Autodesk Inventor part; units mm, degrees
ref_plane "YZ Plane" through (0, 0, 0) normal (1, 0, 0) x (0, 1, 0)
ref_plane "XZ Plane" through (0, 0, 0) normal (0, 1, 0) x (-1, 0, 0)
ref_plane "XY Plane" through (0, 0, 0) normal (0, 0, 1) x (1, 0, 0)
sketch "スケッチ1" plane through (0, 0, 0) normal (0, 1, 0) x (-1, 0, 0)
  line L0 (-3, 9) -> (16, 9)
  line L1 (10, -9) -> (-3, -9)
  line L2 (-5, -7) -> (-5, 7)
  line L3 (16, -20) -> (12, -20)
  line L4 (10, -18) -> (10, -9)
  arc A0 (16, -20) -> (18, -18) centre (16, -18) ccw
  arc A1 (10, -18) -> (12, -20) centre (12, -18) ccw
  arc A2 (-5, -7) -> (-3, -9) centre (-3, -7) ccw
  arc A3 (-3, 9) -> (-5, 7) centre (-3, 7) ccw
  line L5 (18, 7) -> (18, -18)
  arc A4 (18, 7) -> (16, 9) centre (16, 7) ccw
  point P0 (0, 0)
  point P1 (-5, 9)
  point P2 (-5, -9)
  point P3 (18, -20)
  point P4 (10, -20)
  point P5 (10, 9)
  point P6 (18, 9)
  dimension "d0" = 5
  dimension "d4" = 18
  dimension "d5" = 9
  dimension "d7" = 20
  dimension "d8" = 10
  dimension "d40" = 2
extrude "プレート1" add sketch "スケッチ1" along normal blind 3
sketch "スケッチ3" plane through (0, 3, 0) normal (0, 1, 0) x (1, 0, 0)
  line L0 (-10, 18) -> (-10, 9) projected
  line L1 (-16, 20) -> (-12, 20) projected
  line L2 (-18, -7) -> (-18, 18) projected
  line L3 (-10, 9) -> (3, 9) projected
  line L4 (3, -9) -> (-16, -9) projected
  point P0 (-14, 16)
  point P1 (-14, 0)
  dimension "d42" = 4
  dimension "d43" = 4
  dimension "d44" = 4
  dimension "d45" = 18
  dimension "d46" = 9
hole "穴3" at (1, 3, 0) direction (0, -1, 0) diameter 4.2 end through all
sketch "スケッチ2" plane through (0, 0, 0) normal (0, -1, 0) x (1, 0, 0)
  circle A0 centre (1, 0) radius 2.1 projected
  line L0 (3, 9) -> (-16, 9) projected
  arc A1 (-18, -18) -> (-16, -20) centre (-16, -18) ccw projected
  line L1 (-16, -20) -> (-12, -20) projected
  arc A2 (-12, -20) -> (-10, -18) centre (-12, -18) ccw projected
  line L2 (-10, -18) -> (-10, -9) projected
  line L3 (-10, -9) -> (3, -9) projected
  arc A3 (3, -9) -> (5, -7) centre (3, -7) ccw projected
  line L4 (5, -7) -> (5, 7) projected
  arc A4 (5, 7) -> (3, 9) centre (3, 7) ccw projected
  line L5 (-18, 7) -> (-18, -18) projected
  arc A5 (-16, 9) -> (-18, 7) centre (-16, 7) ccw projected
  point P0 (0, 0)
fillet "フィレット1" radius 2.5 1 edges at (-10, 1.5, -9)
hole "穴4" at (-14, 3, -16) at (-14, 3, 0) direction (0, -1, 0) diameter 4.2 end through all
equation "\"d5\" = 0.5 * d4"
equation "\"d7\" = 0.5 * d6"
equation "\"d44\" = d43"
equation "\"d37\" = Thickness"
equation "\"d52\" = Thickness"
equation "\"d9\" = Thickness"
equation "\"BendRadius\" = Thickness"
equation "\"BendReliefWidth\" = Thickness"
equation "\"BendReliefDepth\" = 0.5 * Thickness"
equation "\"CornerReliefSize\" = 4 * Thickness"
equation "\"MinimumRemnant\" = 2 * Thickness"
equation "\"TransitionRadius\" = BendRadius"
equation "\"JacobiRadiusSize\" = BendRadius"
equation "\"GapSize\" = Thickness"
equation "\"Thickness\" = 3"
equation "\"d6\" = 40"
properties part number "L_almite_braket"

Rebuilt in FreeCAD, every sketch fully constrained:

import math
import FreeCAD as App
import Part
import Sketcher
Q = App.Units.Quantity


def edges_at(feature, points):
    """Names of the edges that pass closest to the given points."""
    edges = feature.Shape.Edges
    near = lambda p: min(range(len(edges)), key=lambda i: edges[i].distToShape(Part.Vertex(*p))[0])
    return sorted({f"Edge{near(p) + 1}" for p in points})

doc = App.newDocument("Part")
body = doc.addObject("PartDesign::Body", "Body")

sketch1 = body.newObject("Sketcher::SketchObject", "Sketch")
sketch1.AttachmentSupport = (doc.getObject("XZ_Plane"), [""])
sketch1.MapMode = "FlatFace"
sketch1.addGeometry(Part.LineSegment(App.Vector(-16, 9, 0), App.Vector(3, 9, 0)), False)
sketch1.addGeometry(Part.ArcOfCircle(Part.Circle(App.Vector(3, 7, 0), App.Vector(0, 0, 1), 2), math.radians(0), math.radians(90)), False)
sketch1.addGeometry(Part.LineSegment(App.Vector(5, 7, 0), App.Vector(5, -7, 0)), False)
sketch1.addGeometry(Part.ArcOfCircle(Part.Circle(App.Vector(3, -7, 0), App.Vector(0, 0, 1), 2), math.radians(-90), math.radians(0)), False)
sketch1.addGeometry(Part.LineSegment(App.Vector(3, -9, 0), App.Vector(-10, -9, 0)), False)
sketch1.addGeometry(Part.LineSegment(App.Vector(-10, -9, 0), App.Vector(-10, -18, 0)), False)
sketch1.addGeometry(Part.ArcOfCircle(Part.Circle(App.Vector(-12, -18, 0), App.Vector(0, 0, 1), 2), math.radians(-90), math.radians(0)), False)
sketch1.addGeometry(Part.LineSegment(App.Vector(-12, -20, 0), App.Vector(-16, -20, 0)), False)
sketch1.addGeometry(Part.ArcOfCircle(Part.Circle(App.Vector(-16, -18, 0), App.Vector(0, 0, 1), 2), math.radians(180), math.radians(270)), False)
sketch1.addGeometry(Part.LineSegment(App.Vector(-18, -18, 0), App.Vector(-18, 7, 0)), False)
sketch1.addGeometry(Part.ArcOfCircle(Part.Circle(App.Vector(-16, 7, 0), App.Vector(0, 0, 1), 2), math.radians(90), math.radians(180)), False)
sketch1.addConstraint(Sketcher.Constraint("Tangent", 0, 2, 1, 2))
sketch1.addConstraint(Sketcher.Constraint("Tangent", 1, 1, 2, 1))
sketch1.addConstraint(Sketcher.Constraint("Tangent", 2, 2, 3, 2))
sketch1.addConstraint(Sketcher.Constraint("Tangent", 3, 1, 4, 1))
sketch1.addConstraint(Sketcher.Constraint("Coincident", 4, 2, 5, 1))
sketch1.addConstraint(Sketcher.Constraint("Tangent", 5, 2, 6, 2))
sketch1.addConstraint(Sketcher.Constraint("Tangent", 6, 1, 7, 1))
sketch1.addConstraint(Sketcher.Constraint("Tangent", 7, 2, 8, 2))
sketch1.addConstraint(Sketcher.Constraint("Tangent", 8, 1, 9, 1))
sketch1.addConstraint(Sketcher.Constraint("Tangent", 9, 2, 10, 2))
sketch1.addConstraint(Sketcher.Constraint("Tangent", 10, 1, 0, 1))
sketch1.addConstraint(Sketcher.Constraint("Horizontal", 0))
sketch1.addConstraint(Sketcher.Constraint("Vertical", 2))
sketch1.addConstraint(Sketcher.Constraint("Horizontal", 4))
sketch1.addConstraint(Sketcher.Constraint("Vertical", 5))
sketch1.addConstraint(Sketcher.Constraint("Horizontal", 7))
sketch1.addConstraint(Sketcher.Constraint("Vertical", 9))
sketch1.addConstraint(Sketcher.Constraint("Equal", 1, 3))
sketch1.addConstraint(Sketcher.Constraint("Equal", 3, 6))
sketch1.addConstraint(Sketcher.Constraint("Equal", 6, 8))
sketch1.addConstraint(Sketcher.Constraint("Equal", 8, 10))
sketch1.addConstraint(Sketcher.Constraint("Radius", 1, Q("2 mm")))
sketch1.addConstraint(Sketcher.Constraint("DistanceY", 5, 2, 5, 1, Q("9 mm")))
sketch1.addConstraint(Sketcher.Constraint("DistanceY", 6, 3, -1, 1, Q("18 mm")))
sketch1.addConstraint(Sketcher.Constraint("DistanceY", -1, 1, 0, 2, Q("9 mm")))
sketch1.addConstraint(Sketcher.Constraint("DistanceX", -1, 1, 1, 1, Q("5 mm")))
sketch1.addConstraint(Sketcher.Constraint("DistanceX", 4, 2, -1, 1, Q("10 mm")))
sketch1.addConstraint(Sketcher.Constraint("DistanceX", 8, 1, -1, 1, Q("18 mm")))
pad1 = body.newObject("PartDesign::Pad", "Pad")
pad1.Profile = sketch1
pad1.Length = 3
pad1.Reversed = True

sketch2 = body.newObject("Sketcher::SketchObject", "Sketch001")
sketch2.AttachmentSupport = (doc.getObject("XZ_Plane"), [""])
sketch2.MapMode = "FlatFace"
sketch2.AttachmentOffset = App.Placement(App.Vector(0, 0, -3), App.Rotation())
sketch2.addGeometry(Part.Circle(App.Vector(1, 0, 0), App.Vector(0, 0, 1), 2.1), False)
sketch2.addConstraint(Sketcher.Constraint("PointOnObject", 0, 3, -1))
sketch2.addConstraint(Sketcher.Constraint("Diameter", 0, Q("4.2 mm")))
sketch2.addConstraint(Sketcher.Constraint("DistanceX", -1, 1, 0, 3, Q("1 mm")))
doc.recompute()
hole = body.newObject("PartDesign::Hole", "Hole")
hole.Profile = sketch2
hole.ThreadType = "None"
hole.Diameter = 4.2
hole.DepthType = "ThroughAll"
hole.Reversed = True
doc.recompute()

fillet = body.newObject("PartDesign::Fillet", "Fillet")
fillet.Base = (hole, edges_at(hole, [(-10, 1.5, -9)]))
fillet.Radius = 2.5

sketch3 = body.newObject("Sketcher::SketchObject", "Sketch002")
sketch3.AttachmentSupport = (doc.getObject("XZ_Plane"), [""])
sketch3.MapMode = "FlatFace"
sketch3.AttachmentOffset = App.Placement(App.Vector(0, 0, -3), App.Rotation())
sketch3.addGeometry(Part.Circle(App.Vector(-14, -16, 0), App.Vector(0, 0, 1), 2.1), False)
sketch3.addGeometry(Part.Circle(App.Vector(-14, 0, 0), App.Vector(0, 0, 1), 2.1), False)
sketch3.addConstraint(Sketcher.Constraint("Equal", 0, 1))
sketch3.addConstraint(Sketcher.Constraint("PointOnObject", 1, 3, -1))
sketch3.addConstraint(Sketcher.Constraint("Vertical", 0, 3, 1, 3))
sketch3.addConstraint(Sketcher.Constraint("Diameter", 0, Q("4.2 mm")))
sketch3.addConstraint(Sketcher.Constraint("DistanceX", 0, 3, -1, 1, Q("14 mm")))
sketch3.addConstraint(Sketcher.Constraint("DistanceY", 0, 3, -1, 1, Q("16 mm")))
doc.recompute()
hole2 = body.newObject("PartDesign::Hole", "Hole001")
hole2.Profile = sketch3
hole2.ThreadType = "None"
hole2.Diameter = 4.2
hole2.DepthType = "ThroughAll"
hole2.Reversed = True

doc.recompute()
